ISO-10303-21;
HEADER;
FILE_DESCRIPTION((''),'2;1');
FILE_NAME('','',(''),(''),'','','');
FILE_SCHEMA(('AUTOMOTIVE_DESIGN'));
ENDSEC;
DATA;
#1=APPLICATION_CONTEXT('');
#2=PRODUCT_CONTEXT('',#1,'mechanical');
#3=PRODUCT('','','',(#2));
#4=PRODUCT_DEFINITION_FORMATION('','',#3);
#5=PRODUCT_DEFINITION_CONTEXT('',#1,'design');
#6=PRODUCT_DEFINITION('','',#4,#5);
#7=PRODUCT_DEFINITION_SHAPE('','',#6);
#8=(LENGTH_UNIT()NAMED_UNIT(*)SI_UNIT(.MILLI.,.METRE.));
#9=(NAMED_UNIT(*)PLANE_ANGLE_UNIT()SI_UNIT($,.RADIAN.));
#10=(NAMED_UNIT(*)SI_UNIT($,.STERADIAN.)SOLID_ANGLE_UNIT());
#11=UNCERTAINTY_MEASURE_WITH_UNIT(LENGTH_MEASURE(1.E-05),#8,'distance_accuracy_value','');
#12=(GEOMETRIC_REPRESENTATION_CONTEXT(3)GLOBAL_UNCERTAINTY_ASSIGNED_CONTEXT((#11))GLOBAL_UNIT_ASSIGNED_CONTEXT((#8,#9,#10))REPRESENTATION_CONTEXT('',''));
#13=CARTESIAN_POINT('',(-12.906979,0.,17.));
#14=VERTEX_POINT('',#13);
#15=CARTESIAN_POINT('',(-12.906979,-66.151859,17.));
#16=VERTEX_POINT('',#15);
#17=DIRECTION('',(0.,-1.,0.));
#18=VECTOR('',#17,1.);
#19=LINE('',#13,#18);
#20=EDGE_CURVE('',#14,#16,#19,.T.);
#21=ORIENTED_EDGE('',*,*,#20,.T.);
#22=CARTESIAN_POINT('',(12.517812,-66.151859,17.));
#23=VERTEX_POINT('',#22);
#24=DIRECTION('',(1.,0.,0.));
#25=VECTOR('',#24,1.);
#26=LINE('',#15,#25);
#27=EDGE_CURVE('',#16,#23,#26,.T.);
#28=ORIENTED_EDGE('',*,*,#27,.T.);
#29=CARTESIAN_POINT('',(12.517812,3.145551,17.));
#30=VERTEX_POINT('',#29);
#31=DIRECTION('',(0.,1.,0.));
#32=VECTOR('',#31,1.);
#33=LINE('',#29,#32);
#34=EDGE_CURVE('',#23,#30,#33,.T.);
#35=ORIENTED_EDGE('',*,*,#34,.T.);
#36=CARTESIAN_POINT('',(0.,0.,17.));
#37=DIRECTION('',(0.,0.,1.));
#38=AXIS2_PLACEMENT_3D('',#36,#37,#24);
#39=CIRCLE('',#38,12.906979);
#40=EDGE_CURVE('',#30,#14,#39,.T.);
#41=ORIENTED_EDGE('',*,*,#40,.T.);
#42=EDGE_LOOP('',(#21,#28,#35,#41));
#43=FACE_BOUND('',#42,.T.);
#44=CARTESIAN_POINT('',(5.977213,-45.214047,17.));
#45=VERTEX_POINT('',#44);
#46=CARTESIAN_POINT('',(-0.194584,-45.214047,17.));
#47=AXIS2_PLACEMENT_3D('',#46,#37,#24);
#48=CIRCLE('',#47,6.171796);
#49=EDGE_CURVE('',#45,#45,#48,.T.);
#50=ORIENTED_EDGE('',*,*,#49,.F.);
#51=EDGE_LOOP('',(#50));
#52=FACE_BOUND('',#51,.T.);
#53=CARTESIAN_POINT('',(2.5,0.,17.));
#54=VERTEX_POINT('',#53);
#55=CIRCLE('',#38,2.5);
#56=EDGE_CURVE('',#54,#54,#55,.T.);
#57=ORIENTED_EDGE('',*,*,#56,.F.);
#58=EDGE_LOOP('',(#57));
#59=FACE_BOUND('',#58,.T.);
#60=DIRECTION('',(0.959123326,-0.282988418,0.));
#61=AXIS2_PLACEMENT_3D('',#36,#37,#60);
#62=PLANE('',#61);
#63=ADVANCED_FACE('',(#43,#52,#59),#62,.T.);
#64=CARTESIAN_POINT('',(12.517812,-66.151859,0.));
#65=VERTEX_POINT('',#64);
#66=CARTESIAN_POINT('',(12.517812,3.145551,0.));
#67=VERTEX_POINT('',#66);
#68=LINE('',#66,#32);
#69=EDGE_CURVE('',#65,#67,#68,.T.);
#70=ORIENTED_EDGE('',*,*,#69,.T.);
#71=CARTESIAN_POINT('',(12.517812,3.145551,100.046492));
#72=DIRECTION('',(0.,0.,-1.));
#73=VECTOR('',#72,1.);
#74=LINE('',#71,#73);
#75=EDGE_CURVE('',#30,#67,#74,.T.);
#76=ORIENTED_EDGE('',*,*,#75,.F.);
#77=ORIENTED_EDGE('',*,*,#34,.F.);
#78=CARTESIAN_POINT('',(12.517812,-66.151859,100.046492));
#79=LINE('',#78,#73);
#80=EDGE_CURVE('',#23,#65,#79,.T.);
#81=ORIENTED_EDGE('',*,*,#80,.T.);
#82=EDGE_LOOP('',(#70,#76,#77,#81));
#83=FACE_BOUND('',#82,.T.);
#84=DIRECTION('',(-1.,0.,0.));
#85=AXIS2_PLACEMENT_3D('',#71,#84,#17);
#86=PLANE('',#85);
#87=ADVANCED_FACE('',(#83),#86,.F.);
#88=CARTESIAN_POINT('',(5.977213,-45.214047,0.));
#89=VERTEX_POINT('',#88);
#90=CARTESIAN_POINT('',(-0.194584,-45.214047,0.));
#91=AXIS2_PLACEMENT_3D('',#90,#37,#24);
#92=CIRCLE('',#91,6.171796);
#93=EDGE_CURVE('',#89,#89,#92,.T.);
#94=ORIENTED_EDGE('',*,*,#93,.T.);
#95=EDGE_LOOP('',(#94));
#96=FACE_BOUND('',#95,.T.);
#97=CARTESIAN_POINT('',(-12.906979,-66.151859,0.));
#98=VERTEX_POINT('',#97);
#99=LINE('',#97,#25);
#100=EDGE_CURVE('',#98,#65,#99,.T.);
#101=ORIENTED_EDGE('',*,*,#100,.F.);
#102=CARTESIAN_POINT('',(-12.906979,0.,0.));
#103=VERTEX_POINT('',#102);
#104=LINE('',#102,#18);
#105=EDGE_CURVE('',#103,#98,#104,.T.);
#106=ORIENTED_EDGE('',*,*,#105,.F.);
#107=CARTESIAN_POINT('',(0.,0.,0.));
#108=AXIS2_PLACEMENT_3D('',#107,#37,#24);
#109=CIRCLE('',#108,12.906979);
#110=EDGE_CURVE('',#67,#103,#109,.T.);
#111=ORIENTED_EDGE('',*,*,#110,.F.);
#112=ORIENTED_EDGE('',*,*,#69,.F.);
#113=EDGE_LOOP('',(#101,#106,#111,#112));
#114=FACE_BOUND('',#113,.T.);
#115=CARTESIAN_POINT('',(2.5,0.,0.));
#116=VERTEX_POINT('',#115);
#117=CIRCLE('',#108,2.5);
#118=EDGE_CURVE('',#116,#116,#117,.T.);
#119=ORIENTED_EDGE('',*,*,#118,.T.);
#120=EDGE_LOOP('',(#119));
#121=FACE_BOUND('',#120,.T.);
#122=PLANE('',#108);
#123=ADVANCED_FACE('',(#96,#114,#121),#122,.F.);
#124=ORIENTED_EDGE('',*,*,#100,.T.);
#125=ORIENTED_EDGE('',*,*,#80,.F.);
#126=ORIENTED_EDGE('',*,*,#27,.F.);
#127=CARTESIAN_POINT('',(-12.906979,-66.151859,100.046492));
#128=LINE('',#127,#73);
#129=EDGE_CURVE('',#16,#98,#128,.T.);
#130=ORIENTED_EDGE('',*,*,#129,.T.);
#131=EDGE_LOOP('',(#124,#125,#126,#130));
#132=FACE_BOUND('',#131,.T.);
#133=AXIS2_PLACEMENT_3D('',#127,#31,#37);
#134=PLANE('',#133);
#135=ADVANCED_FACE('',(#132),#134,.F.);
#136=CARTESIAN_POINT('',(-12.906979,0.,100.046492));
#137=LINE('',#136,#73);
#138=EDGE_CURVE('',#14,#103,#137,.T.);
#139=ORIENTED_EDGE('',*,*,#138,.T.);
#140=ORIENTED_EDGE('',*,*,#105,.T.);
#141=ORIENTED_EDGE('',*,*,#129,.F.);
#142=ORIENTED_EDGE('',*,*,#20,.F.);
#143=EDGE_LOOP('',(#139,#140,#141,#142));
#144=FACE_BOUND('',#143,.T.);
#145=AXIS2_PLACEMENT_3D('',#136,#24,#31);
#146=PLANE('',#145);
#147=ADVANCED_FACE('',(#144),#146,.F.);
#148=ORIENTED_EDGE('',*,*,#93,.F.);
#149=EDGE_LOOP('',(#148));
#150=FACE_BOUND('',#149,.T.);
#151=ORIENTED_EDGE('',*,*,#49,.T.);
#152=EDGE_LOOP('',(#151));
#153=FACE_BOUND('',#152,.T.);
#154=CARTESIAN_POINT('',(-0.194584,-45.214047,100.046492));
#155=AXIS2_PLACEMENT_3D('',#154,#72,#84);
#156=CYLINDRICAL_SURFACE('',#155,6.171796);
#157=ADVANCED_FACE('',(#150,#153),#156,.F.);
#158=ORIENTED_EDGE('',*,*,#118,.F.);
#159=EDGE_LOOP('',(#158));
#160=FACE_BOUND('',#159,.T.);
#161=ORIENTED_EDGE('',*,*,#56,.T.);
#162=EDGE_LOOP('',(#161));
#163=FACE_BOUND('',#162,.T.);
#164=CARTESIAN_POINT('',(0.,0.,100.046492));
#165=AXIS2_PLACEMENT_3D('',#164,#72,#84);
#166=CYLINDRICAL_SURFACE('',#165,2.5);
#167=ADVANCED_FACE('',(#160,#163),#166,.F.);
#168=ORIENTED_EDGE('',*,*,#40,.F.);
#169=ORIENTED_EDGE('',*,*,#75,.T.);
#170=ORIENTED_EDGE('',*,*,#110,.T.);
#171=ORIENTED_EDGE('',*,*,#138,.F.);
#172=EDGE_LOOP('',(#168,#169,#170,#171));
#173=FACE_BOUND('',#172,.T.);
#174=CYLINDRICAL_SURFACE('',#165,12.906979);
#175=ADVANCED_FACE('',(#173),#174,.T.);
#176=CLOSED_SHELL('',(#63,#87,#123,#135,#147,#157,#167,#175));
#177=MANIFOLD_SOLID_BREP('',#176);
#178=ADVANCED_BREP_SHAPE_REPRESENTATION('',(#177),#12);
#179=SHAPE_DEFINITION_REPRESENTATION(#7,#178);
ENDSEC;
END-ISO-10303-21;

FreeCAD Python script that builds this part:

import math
import FreeCAD as App
import Part
import Sketcher
from FreeCAD import Vector

doc = App.newDocument("Part")
body = doc.addObject("PartDesign::Body", "Body")

# Sketch on XY plane
sketch1 = doc.addObject("Sketcher::SketchObject", "Sketch")
body.addObject(sketch1)
sketch1.AttachmentSupport = (doc.XY_Plane, [""])
sketch1.MapMode = "FlatFace"
sketch1.addGeometry([
    Part.LineSegment(Vector(-12.9, 0, 0), Vector(-12.9, -66.2, 0)),  # 0
    Part.LineSegment(Vector(-12.9, -66.2, 0), Vector(12.5, -66.2, 0)),  # 1
    Part.LineSegment(Vector(12.5, -66.2, 0), Vector(12.5, 3.1, 0)),  # 2
    Part.ArcOfCircle(Part.Circle(Vector(0, 0, 0), Vector(0, 0, 1), 12.9), math.radians(14), math.radians(180)),  # 3
    Part.Circle(Vector(-0.2, -45.2, 0), Vector(0, 0, 1), 6.2),  # 4
    Part.Circle(Vector(0, 0, 0), Vector(0, 0, 1), 2.5),  # 5
], False)
sketch1.addConstraint([
    Sketcher.Constraint("Coincident", 0, 2, 1, 1),
    Sketcher.Constraint("Coincident", 1, 2, 2, 1),
    Sketcher.Constraint("Coincident", 2, 2, 3, 1),
    Sketcher.Constraint("Tangent", 3, 2, 0, 1),
    Sketcher.Constraint("Vertical", 0),
    Sketcher.Constraint("Horizontal", 1),
    Sketcher.Constraint("Vertical", 2),
    Sketcher.Constraint("Coincident", 3, 3, -1, 1),
    Sketcher.Constraint("Coincident", 5, 3, -1, 1),
    Sketcher.Constraint("Diameter", 5, 5.0),
    Sketcher.Constraint("Radius", 3, 12.906979),
    Sketcher.Constraint("Diameter", 4, 12.343593),
    Sketcher.Constraint("DistanceX", 1, 1, 1, 2, 25.424791),
    Sketcher.Constraint("DistanceY", 0, 2, 0, 1, 66.151859),
    Sketcher.Constraint("DistanceY", 0, 2, 4, 3, 20.937812),
    Sketcher.Constraint("DistanceX", 4, 3, -1, 1, 0.194584),
])
pad1 = doc.addObject("PartDesign::Pad", "Pad")
body.addObject(pad1)
pad1.Profile = sketch1
pad1.Length = 17

doc.recompute()
